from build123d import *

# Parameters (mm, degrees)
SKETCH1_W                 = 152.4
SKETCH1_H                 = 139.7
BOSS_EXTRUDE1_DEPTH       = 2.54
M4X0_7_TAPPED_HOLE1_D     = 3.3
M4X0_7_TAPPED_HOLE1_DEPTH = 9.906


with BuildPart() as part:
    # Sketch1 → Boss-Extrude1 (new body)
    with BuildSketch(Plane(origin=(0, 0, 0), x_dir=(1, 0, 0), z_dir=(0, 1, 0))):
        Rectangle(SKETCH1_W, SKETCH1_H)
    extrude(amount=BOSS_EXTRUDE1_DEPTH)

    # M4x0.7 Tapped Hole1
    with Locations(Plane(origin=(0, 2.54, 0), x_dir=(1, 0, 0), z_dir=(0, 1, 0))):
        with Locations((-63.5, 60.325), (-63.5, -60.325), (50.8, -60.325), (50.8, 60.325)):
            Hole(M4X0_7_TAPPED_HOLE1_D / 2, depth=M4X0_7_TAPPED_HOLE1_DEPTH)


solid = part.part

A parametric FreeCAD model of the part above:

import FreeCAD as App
import Part
import Sketcher
Q = App.Units.Quantity

doc = App.newDocument("Part")
body = doc.addObject("PartDesign::Body", "Body")

# Sketch on XZ plane
sketch1 = body.newObject("Sketcher::SketchObject", "Sketch")
sketch1.AttachmentSupport = (doc.getObject("XZ_Plane"), [""])
sketch1.MapMode = "FlatFace"
sketch1.addGeometry([
    Part.LineSegment(App.Vector(-76.2, -69.85, 0), App.Vector(-76.2, 69.85, 0)),
    Part.LineSegment(App.Vector(-76.2, 69.85, 0), App.Vector(76.2, 69.85, 0)),
    Part.LineSegment(App.Vector(76.2, 69.85, 0), App.Vector(76.2, -69.85, 0)),
    Part.LineSegment(App.Vector(76.2, -69.85, 0), App.Vector(-76.2, -69.85, 0)),
], False)
sketch1.addConstraint([
    Sketcher.Constraint("Coincident", 0, 2, 1, 1),
    Sketcher.Constraint("Coincident", 1, 2, 2, 1),
    Sketcher.Constraint("Coincident", 2, 2, 3, 1),
    Sketcher.Constraint("Coincident", 3, 2, 0, 1),
    Sketcher.Constraint("Vertical", 0),
    Sketcher.Constraint("Horizontal", 1),
    Sketcher.Constraint("Vertical", 2),
    Sketcher.Constraint("Horizontal", 3),
    Sketcher.Constraint("Symmetric", 0, 2, 2, 2, -1, 1),
    Sketcher.Constraint("DistanceX", 1, 1, 1, 2, Q("6 in")),
    Sketcher.Constraint("DistanceY", 0, 1, 0, 2, Q("5.5 in")),
])
pad1 = body.newObject("PartDesign::Pad", "Pad")
pad1.Profile = sketch1
pad1.Length = Q("0.1 in")
pad1.Reversed = True

# Sketch on XZ plane
sketch2 = body.newObject("Sketcher::SketchObject", "Sketch001")
sketch2.AttachmentSupport = (doc.getObject("XZ_Plane"), [""])
sketch2.MapMode = "FlatFace"
sketch2.AttachmentOffset = App.Placement(App.Vector(0, 0, -0.1 * 25.4), App.Rotation())
sketch2.addGeometry([
    Part.Circle(App.Vector(-63.5, -60.325, 0), App.Vector(0, 0, 1), 1.65),
    Part.Circle(App.Vector(-63.5, 60.325, 0), App.Vector(0, 0, 1), 1.65),
    Part.Circle(App.Vector(50.8, 60.325, 0), App.Vector(0, 0, 1), 1.65),
    Part.Circle(App.Vector(50.8, -60.325, 0), App.Vector(0, 0, 1), 1.65),
], False)
sketch2.addConstraint([
    Sketcher.Constraint("Equal", 0, 1),
    Sketcher.Constraint("Equal", 1, 2),
    Sketcher.Constraint("Equal", 2, 3),
    Sketcher.Constraint("Symmetric", 0, 3, 1, 3, -1),
    Sketcher.Constraint("Symmetric", 2, 3, 3, 3, -1),
    Sketcher.Constraint("Horizontal", 1, 3, 2, 3),
    Sketcher.Constraint("DistanceX", -1, 1, 2, 3, Q("2 in")),
    Sketcher.Constraint("DistanceX", 0, 3, -1, 1, Q("2.5 in")),
    Sketcher.Constraint("Diameter", 0, 3.3),
    Sketcher.Constraint("DistanceY", 0, 3, 1, 3, Q("4.75 in")),
])
doc.recompute()
hole = body.newObject("PartDesign::Hole", "Hole")
hole.Profile = sketch2
hole.ThreadType = "None"
hole.Diameter = 3.3
hole.DepthType = "Dimension"
hole.Depth = Q("0.39 in")
hole.DrillPoint = "Flat"
hole.Reversed = True

doc.recompute()
